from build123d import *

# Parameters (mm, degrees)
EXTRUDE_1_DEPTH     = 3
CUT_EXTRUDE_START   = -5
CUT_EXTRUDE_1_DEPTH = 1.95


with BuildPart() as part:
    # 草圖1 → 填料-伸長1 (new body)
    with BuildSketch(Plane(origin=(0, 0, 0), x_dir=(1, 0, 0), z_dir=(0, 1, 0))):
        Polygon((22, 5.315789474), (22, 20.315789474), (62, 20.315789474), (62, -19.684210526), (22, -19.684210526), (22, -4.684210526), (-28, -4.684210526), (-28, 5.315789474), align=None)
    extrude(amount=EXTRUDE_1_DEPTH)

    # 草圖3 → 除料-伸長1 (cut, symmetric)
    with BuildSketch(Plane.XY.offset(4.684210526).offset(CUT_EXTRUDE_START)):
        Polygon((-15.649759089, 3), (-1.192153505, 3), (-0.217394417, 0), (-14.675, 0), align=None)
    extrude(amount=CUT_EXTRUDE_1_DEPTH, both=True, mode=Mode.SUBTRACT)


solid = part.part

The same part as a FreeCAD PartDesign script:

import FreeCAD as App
import Part
import Sketcher
Q = App.Units.Quantity

doc = App.newDocument("Part")
params = doc.addObject("Spreadsheet::Sheet", "Params")
for row, (alias, value) in enumerate([
    ("sketch1_width", "50 mm"),
    ("sketch1_width2", "40 mm"),
    ("sketch1_height", "15 mm"),
    ("pad1_length", "3 mm"),
    ("pocket1_length", "3.9 mm"),
], start=1):
    params.set(f"A{row}", alias)
    params.set(f"B{row}", "=" + value)
    params.setAlias(f"B{row}", alias)

body = doc.addObject("PartDesign::Body", "Body")

# Sketch on XZ plane
sketch1 = body.newObject("Sketcher::SketchObject", "Sketch")
sketch1.AttachmentSupport = (doc.getObject("XZ_Plane"), [""])
sketch1.MapMode = "FlatFace"
sketch1.addGeometry(Part.LineSegment(App.Vector(22, -20, 0), App.Vector(22, -5, 0)), False)
sketch1.addGeometry(Part.LineSegment(App.Vector(22, -5, 0), App.Vector(-28, -5, 0)), False)
sketch1.addGeometry(Part.LineSegment(App.Vector(-28, -5, 0), App.Vector(-28, 5, 0)), False)
sketch1.addGeometry(Part.LineSegment(App.Vector(-28, 5, 0), App.Vector(22, 5, 0)), False)
sketch1.addGeometry(Part.LineSegment(App.Vector(22, 5, 0), App.Vector(22, 20, 0)), False)
sketch1.addGeometry(Part.LineSegment(App.Vector(22, 20, 0), App.Vector(62, 20, 0)), False)
sketch1.addGeometry(Part.LineSegment(App.Vector(62, 20, 0), App.Vector(62, -20, 0)), False)
sketch1.addGeometry(Part.LineSegment(App.Vector(62, -20, 0), App.Vector(22, -20, 0)), False)
sketch1.addConstraint(Sketcher.Constraint("Coincident", 0, 2, 1, 1))
sketch1.addConstraint(Sketcher.Constraint("Coincident", 1, 2, 2, 1))
sketch1.addConstraint(Sketcher.Constraint("Coincident", 2, 2, 3, 1))
sketch1.addConstraint(Sketcher.Constraint("Coincident", 3, 2, 4, 1))
sketch1.addConstraint(Sketcher.Constraint("Coincident", 4, 2, 5, 1))
sketch1.addConstraint(Sketcher.Constraint("Coincident", 5, 2, 6, 1))
sketch1.addConstraint(Sketcher.Constraint("Coincident", 6, 2, 7, 1))
sketch1.addConstraint(Sketcher.Constraint("Coincident", 7, 2, 0, 1))
sketch1.addConstraint(Sketcher.Constraint("Vertical", 0))
sketch1.addConstraint(Sketcher.Constraint("Horizontal", 1))
sketch1.addConstraint(Sketcher.Constraint("Vertical", 2))
sketch1.addConstraint(Sketcher.Constraint("Horizontal", 3))
sketch1.addConstraint(Sketcher.Constraint("Vertical", 4))
sketch1.addConstraint(Sketcher.Constraint("Horizontal", 5))
sketch1.addConstraint(Sketcher.Constraint("Vertical", 6))
sketch1.addConstraint(Sketcher.Constraint("Horizontal", 7))
sketch1.addConstraint(Sketcher.Constraint("Vertical", 0, 2, 3, 2))
sketch1.addConstraint(Sketcher.Constraint("Equal", 0, 4))
sketch1.addConstraint(Sketcher.Constraint("Equal", 7, 6))
sketch1.addConstraint(Sketcher.Constraint("DistanceX", 1, 2, 1, 1, 50.0))
sketch1.addConstraint(Sketcher.Constraint("DistanceX", 5, 1, 5, 2, 40.0))
sketch1.addConstraint(Sketcher.Constraint("DistanceY", 0, 1, 0, 2, 15.0))
sketch1.addConstraint(Sketcher.Constraint("DistanceX", -1, 1, 0, 2, 22.0))
sketch1.addConstraint(Sketcher.Constraint("DistanceY", 0, 2, -1, 1, 5.315789))
sketch1.setExpression("Constraints[19]", "Params.sketch1_width")
sketch1.setExpression("Constraints[20]", "Params.sketch1_width2")
sketch1.setExpression("Constraints[21]", "Params.sketch1_height")
pad1 = body.newObject("PartDesign::Pad", "Pad")
pad1.Profile = sketch1
pad1.setExpression("Length", "Params.pad1_length")
pad1.Reversed = True

# Sketch on XY plane
sketch2 = body.newObject("Sketcher::SketchObject", "Sketch001")
sketch2.AttachmentSupport = (doc.getObject("XY_Plane"), [""])
sketch2.MapMode = "FlatFace"
sketch2.AttachmentOffset = App.Placement(App.Vector(0, 0, -0.315789), App.Rotation())
sketch2.addGeometry(Part.LineSegment(App.Vector(-1.2, 3, 0), App.Vector(-15.6, 3, 0)), False)
sketch2.addGeometry(Part.LineSegment(App.Vector(-15.6, 3, 0), App.Vector(-14.7, 0, 0)), False)
sketch2.addGeometry(Part.LineSegment(App.Vector(-14.7, 0, 0), App.Vector(-0.2, 0, 0)), False)
sketch2.addGeometry(Part.LineSegment(App.Vector(-0.2, 0, 0), App.Vector(-1.2, 3, 0)), False)
sketch2.addConstraint(Sketcher.Constraint("Coincident", 0, 2, 1, 1))
sketch2.addConstraint(Sketcher.Constraint("Coincident", 1, 2, 2, 1))
sketch2.addConstraint(Sketcher.Constraint("Coincident", 2, 2, 3, 1))
sketch2.addConstraint(Sketcher.Constraint("Coincident", 3, 2, 0, 1))
sketch2.addConstraint(Sketcher.Constraint("Horizontal", 0))
sketch2.addConstraint(Sketcher.Constraint("Horizontal", 2))
sketch2.addConstraint(Sketcher.Constraint("PointOnObject", 1, 2, -1))
sketch2.addConstraint(Sketcher.Constraint("Parallel", 1, 3))
sketch2.addConstraint(Sketcher.Constraint("Angle", 1, Q("-72 deg")))
sketch2.addConstraint(Sketcher.Constraint("DistanceY", -1, 1, 0, 2, 3.0))
sketch2.addConstraint(Sketcher.Constraint("DistanceX", 1, 2, -1, 1, 14.675))
sketch2.addConstraint(Sketcher.Constraint("DistanceX", 0, 2, 0, 1, 14.457606))
pocket1 = body.newObject("PartDesign::Pocket", "Pocket")
pocket1.Profile = sketch2
pocket1.setExpression("Length", "Params.pocket1_length")
pocket1.Midplane = True

doc.recompute()
